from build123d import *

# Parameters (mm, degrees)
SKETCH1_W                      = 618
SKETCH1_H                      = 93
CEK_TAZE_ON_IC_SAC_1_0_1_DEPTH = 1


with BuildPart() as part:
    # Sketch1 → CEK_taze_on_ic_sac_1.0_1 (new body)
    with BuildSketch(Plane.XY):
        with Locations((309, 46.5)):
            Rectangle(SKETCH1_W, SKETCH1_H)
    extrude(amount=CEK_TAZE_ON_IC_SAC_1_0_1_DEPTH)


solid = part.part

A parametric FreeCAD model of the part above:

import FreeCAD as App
import Part
import Sketcher
from FreeCAD import Vector

doc = App.newDocument("Part")
body = doc.addObject("PartDesign::Body", "Body")

sketch1 = body.newObject("Sketcher::SketchObject", "Sketch")
sketch1.AttachmentSupport = (doc.getObject("XY_Plane"), [""])
sketch1.MapMode = "FlatFace"
sketch1.addGeometry([
    Part.LineSegment(Vector(0, 93, 0), Vector(0, 0, 0)),
    Part.LineSegment(Vector(0, 0, 0), Vector(618, 0, 0)),
    Part.LineSegment(Vector(618, 0, 0), Vector(618, 93, 0)),
    Part.LineSegment(Vector(618, 93, 0), Vector(0, 93, 0)),
], False)
sketch1.addConstraint([
    Sketcher.Constraint("Coincident", 0, 2, 1, 1),
    Sketcher.Constraint("Coincident", 1, 2, 2, 1),
    Sketcher.Constraint("Coincident", 2, 2, 3, 1),
    Sketcher.Constraint("Coincident", 3, 2, 0, 1),
    Sketcher.Constraint("Vertical", 0),
    Sketcher.Constraint("Horizontal", 1),
    Sketcher.Constraint("Vertical", 2),
    Sketcher.Constraint("Horizontal", 3),
    Sketcher.Constraint("Coincident", 0, 2, -1, 1),
    Sketcher.Constraint("DistanceX", 1, 1, 1, 2, 618.0),
    Sketcher.Constraint("DistanceY", 0, 2, 0, 1, 93.0),
])
pad1 = body.newObject("PartDesign::Pad", "Pad")
pad1.Profile = sketch1
pad1.Length = 1

doc.recompute()
